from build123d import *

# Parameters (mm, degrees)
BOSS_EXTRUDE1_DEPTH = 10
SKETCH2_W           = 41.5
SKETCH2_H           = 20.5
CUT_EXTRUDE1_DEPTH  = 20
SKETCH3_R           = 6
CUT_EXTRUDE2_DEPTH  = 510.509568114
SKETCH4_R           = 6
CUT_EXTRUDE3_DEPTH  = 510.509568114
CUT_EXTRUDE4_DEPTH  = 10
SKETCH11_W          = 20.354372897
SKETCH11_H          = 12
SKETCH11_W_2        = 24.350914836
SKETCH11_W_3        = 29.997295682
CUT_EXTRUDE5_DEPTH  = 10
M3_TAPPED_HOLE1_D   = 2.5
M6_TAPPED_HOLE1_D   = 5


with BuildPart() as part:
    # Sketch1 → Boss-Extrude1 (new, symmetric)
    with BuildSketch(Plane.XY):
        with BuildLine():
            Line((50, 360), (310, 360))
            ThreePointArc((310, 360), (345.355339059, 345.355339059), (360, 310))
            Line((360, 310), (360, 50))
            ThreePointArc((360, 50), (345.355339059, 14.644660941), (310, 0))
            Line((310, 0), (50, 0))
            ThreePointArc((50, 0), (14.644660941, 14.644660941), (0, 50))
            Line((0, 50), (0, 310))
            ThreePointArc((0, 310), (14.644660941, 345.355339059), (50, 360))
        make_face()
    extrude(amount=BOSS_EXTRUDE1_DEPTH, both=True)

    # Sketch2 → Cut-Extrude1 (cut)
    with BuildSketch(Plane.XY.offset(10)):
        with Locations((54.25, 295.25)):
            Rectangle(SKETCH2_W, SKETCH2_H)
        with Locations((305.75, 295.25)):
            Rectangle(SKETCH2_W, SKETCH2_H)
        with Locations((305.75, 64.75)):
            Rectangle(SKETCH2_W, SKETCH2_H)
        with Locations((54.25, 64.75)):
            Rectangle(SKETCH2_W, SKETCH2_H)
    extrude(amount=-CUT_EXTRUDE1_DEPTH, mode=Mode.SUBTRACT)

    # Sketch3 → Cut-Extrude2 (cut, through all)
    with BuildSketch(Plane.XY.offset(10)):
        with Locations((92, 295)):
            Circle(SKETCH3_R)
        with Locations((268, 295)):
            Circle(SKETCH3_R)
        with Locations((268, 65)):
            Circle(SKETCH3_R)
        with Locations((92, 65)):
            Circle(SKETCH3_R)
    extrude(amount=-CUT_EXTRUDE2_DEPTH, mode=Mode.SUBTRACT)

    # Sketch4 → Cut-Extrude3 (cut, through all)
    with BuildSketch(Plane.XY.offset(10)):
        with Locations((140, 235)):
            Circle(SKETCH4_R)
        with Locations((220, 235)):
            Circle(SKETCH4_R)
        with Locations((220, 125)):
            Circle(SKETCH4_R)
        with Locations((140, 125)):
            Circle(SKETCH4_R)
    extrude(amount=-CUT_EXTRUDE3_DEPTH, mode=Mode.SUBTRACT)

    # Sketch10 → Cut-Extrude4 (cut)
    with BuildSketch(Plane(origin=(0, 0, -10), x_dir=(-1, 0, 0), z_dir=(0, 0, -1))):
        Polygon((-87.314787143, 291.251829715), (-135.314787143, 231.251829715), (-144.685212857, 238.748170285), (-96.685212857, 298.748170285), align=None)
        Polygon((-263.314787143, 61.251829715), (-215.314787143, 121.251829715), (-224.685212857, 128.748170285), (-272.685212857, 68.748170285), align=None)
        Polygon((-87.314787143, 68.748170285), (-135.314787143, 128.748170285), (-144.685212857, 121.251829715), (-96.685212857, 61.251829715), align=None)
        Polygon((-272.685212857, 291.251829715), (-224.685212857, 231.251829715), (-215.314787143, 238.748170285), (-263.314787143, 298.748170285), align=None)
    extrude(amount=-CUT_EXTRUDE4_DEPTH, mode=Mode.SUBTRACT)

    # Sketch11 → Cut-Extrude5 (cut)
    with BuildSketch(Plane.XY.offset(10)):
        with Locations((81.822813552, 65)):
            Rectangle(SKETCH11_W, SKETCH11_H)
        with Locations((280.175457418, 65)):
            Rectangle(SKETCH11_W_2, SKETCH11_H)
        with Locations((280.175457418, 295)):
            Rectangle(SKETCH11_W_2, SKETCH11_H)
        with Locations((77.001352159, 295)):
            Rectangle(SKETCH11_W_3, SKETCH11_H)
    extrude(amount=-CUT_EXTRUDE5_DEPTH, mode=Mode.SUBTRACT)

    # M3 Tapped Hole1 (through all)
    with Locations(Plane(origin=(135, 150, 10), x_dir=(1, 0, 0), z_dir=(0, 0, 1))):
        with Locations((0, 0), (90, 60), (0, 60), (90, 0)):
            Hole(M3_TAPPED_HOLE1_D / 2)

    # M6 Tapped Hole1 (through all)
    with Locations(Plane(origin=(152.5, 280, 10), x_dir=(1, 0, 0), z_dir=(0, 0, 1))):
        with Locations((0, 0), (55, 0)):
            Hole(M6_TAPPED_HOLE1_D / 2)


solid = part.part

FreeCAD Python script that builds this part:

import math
import FreeCAD as App
import Part
import Sketcher

V = App.Vector


def add_polygon(sketch, points):
    """Adds a closed chain of lines whose ends are joined by coincident constraints."""
    first, n = sketch.GeometryCount, len(points)
    for a, b in zip(points, points[1:] + points[:1]):
        sketch.addGeometry(Part.LineSegment(App.Vector(*a, 0), App.Vector(*b, 0)), False)
    for i in range(n):
        sketch.addConstraint(Sketcher.Constraint("Coincident", first + i, 2, first + (i + 1) % n, 1))

doc = App.newDocument("Part")
params = doc.addObject("Spreadsheet::Sheet", "Params")
for row, (alias, value) in enumerate([
    ("sketch1_radius", "50 mm"),
    ("sketch1_width", "260 mm"),
    ("pad1_length", "20 mm"),
    ("sketch2_width", "41.5 mm"),
    ("sketch2_height", "20.5 mm"),
    ("pocket1_length", "20 mm"),
    ("sketch3_diameter", "12 mm"),
    ("sketch4_diameter", "12 mm"),
    ("sketch5_length", "12 mm"),
    ("pocket4_length", "10 mm"),
    ("sketch6_height", "12 mm"),
    ("pocket5_length", "10 mm"),
    ("sketch7_diameter", "2.5 mm"),
    ("hole_diameter", "2.5 mm"),
    ("sketch8_diameter", "5 mm"),
    ("hole2_diameter", "5 mm"),
], start=1):
    params.set(f"A{row}", alias)
    params.set(f"B{row}", "=" + value)
    params.setAlias(f"B{row}", alias)

body = doc.addObject("PartDesign::Body", "Body")

sketch1 = doc.addObject("Sketcher::SketchObject", "Sketch")
body.addObject(sketch1)
sketch1.AttachmentSupport = (doc.XY_Plane, [""])
sketch1.MapMode = "FlatFace"
sketch1.addGeometry([
    Part.LineSegment(V(310, 360, 0), V(50, 360, 0)),
    Part.ArcOfCircle(Part.Circle(V(50, 310, 0), V(0, 0, 1), 50), math.radians(90), math.radians(180)),
    Part.LineSegment(V(0, 310, 0), V(0, 50, 0)),
    Part.ArcOfCircle(Part.Circle(V(50, 50, 0), V(0, 0, 1), 50), math.radians(-180), math.radians(-90)),
    Part.LineSegment(V(50, 0, 0), V(310, 0, 0)),
    Part.ArcOfCircle(Part.Circle(V(310, 50, 0), V(0, 0, 1), 50), math.radians(-90), math.radians(0)),
    Part.LineSegment(V(360, 50, 0), V(360, 310, 0)),
    Part.ArcOfCircle(Part.Circle(V(310, 310, 0), V(0, 0, 1), 50), math.radians(0), math.radians(90)),
], False)
sketch1.addConstraint([
    Sketcher.Constraint("Tangent", 0, 2, 1, 1),
    Sketcher.Constraint("Tangent", 1, 2, 2, 1),
    Sketcher.Constraint("Tangent", 2, 2, 3, 1),
    Sketcher.Constraint("Tangent", 3, 2, 4, 1),
    Sketcher.Constraint("Tangent", 4, 2, 5, 1),
    Sketcher.Constraint("Tangent", 5, 2, 6, 1),
    Sketcher.Constraint("Tangent", 6, 2, 7, 1),
    Sketcher.Constraint("Tangent", 7, 2, 0, 1),
    Sketcher.Constraint("Horizontal", 0),
    Sketcher.Constraint("Vertical", 2),
    Sketcher.Constraint("Horizontal", 4),
    Sketcher.Constraint("Vertical", 6),
    Sketcher.Constraint("Equal", 1, 3),
    Sketcher.Constraint("Equal", 3, 5),
    Sketcher.Constraint("Equal", 5, 7),
    Sketcher.Constraint("PointOnObject", 1, 2, -2),
    Sketcher.Constraint("PointOnObject", 3, 2, -1),
    Sketcher.Constraint("Equal", 4, 2),
    Sketcher.Constraint("Radius", 1, 50.0),
    Sketcher.Constraint("DistanceX", 0, 2, 0, 1, 260.0),
])
sketch1.setExpression("Constraints[18]", "Params.sketch1_radius")
sketch1.setExpression("Constraints[19]", "Params.sketch1_width")
pad1 = doc.addObject("PartDesign::Pad", "Pad")
body.addObject(pad1)
pad1.Profile = sketch1
pad1.setExpression("Length", "Params.pad1_length")
pad1.Midplane = True

sketch2 = doc.addObject("Sketcher::SketchObject", "Sketch001")
body.addObject(sketch2)
sketch2.AttachmentSupport = (doc.XY_Plane, [""])
sketch2.MapMode = "FlatFace"
sketch2.AttachmentOffset = App.Placement(V(0, 0, 10), App.Rotation())
add_polygon(sketch2, [(34, 306), (34, 285), (75, 285), (75, 306)])
add_polygon(sketch2, [(285, 306), (285, 285), (326, 285), (326, 306)])
add_polygon(sketch2, [(285, 75), (285, 54), (326, 54), (326, 75)])
add_polygon(sketch2, [(34, 75), (34, 54), (75, 54), (75, 75)])
sketch2.addConstraint([
    Sketcher.Constraint("Vertical", 0),
    Sketcher.Constraint("Horizontal", 1),
    Sketcher.Constraint("Vertical", 2),
    Sketcher.Constraint("Horizontal", 3),
    Sketcher.Constraint("Vertical", 4),
    Sketcher.Constraint("Horizontal", 5),
    Sketcher.Constraint("Vertical", 6),
    Sketcher.Constraint("Horizontal", 7),
    Sketcher.Constraint("Vertical", 8),
    Sketcher.Constraint("Horizontal", 9),
    Sketcher.Constraint("Vertical", 10),
    Sketcher.Constraint("Horizontal", 11),
    Sketcher.Constraint("Vertical", 12),
    Sketcher.Constraint("Horizontal", 13),
    Sketcher.Constraint("Vertical", 14),
    Sketcher.Constraint("Horizontal", 15),
    Sketcher.Constraint("Horizontal", 1, 2, 4, 2),
    Sketcher.Constraint("Horizontal", 3, 2, 6, 2),
    Sketcher.Constraint("Horizontal", 9, 2, 12, 2),
    Sketcher.Constraint("Horizontal", 11, 2, 14, 2),
    Sketcher.Constraint("Vertical", 7, 2, 8, 2),
    Sketcher.Constraint("Vertical", 6, 2, 9, 2),
    Sketcher.Constraint("Vertical", 3, 2, 12, 2),
    Sketcher.Constraint("Vertical", 2, 2, 13, 2),
    Sketcher.Constraint("Equal", 3, 5),
    Sketcher.Constraint("Equal", 6, 8),
    Sketcher.Constraint("DistanceX", 1, 1, 1, 2, 41.5),
    Sketcher.Constraint("DistanceY", 0, 2, 0, 1, 20.5),
    Sketcher.Constraint("DistanceY", -1, 1, 0, 2, 285.0),
    Sketcher.Constraint("DistanceX", -1, 1, 1, 2, 75.0),
    Sketcher.Constraint("DistanceX", -1, 1, 4, 2, 285.0),
    Sketcher.Constraint("DistanceY", -1, 1, 10, 2, 75.0),
])
sketch2.setExpression("Constraints[42]", "Params.sketch2_width")
sketch2.setExpression("Constraints[43]", "Params.sketch2_height")
pocket1 = doc.addObject("PartDesign::Pocket", "Pocket")
body.addObject(pocket1)
pocket1.Profile = sketch2
pocket1.setExpression("Length", "Params.pocket1_length")

sketch3 = doc.addObject("Sketcher::SketchObject", "Sketch002")
body.addObject(sketch3)
sketch3.AttachmentSupport = (doc.XY_Plane, [""])
sketch3.MapMode = "FlatFace"
sketch3.AttachmentOffset = App.Placement(V(0, 0, 10), App.Rotation())
sketch3.addGeometry([
    Part.Circle(V(92, 295, 0), V(0, 0, 1), 6),
    Part.Circle(V(268, 295, 0), V(0, 0, 1), 6),
    Part.Circle(V(268, 65, 0), V(0, 0, 1), 6),
    Part.Circle(V(92, 65, 0), V(0, 0, 1), 6),
], False)
sketch3.addConstraint([
    Sketcher.Constraint("Equal", 0, 1),
    Sketcher.Constraint("Equal", 1, 2),
    Sketcher.Constraint("Equal", 2, 3),
    Sketcher.Constraint("Horizontal", 0, 3, 1, 3),
    Sketcher.Constraint("Horizontal", 2, 3, 3, 3),
    Sketcher.Constraint("Vertical", 1, 3, 2, 3),
    Sketcher.Constraint("Vertical", 0, 3, 3, 3),
    Sketcher.Constraint("Diameter", 0, 12.0),
    Sketcher.Constraint("DistanceX", -1, 1, 0, 3, 92.0),
    Sketcher.Constraint("DistanceY", -1, 1, 0, 3, 295.0),
    Sketcher.Constraint("DistanceX", -1, 1, 1, 3, 268.0),
    Sketcher.Constraint("DistanceY", -1, 1, 2, 3, 65.0),
])
sketch3.setExpression("Constraints[7]", "Params.sketch3_diameter")
pocket2 = doc.addObject("PartDesign::Pocket", "Pocket001")
body.addObject(pocket2)
pocket2.Profile = sketch3
pocket2.Type = "ThroughAll"

sketch4 = doc.addObject("Sketcher::SketchObject", "Sketch003")
body.addObject(sketch4)
sketch4.AttachmentSupport = (doc.XY_Plane, [""])
sketch4.MapMode = "FlatFace"
sketch4.AttachmentOffset = App.Placement(V(0, 0, 10), App.Rotation())
sketch4.addGeometry([
    Part.Circle(V(140, 235, 0), V(0, 0, 1), 6),
    Part.Circle(V(220, 235, 0), V(0, 0, 1), 6),
    Part.Circle(V(220, 125, 0), V(0, 0, 1), 6),
    Part.Circle(V(140, 125, 0), V(0, 0, 1), 6),
], False)
sketch4.addConstraint([
    Sketcher.Constraint("Equal", 0, 1),
    Sketcher.Constraint("Equal", 1, 2),
    Sketcher.Constraint("Equal", 2, 3),
    Sketcher.Constraint("Horizontal", 0, 3, 1, 3),
    Sketcher.Constraint("Horizontal", 2, 3, 3, 3),
    Sketcher.Constraint("Vertical", 1, 3, 2, 3),
    Sketcher.Constraint("Vertical", 0, 3, 3, 3),
    Sketcher.Constraint("Diameter", 0, 12.0),
    Sketcher.Constraint("DistanceX", -1, 1, 0, 3, 140.0),
    Sketcher.Constraint("DistanceY", -1, 1, 0, 3, 235.0),
    Sketcher.Constraint("DistanceX", -1, 1, 1, 3, 220.0),
    Sketcher.Constraint("DistanceY", -1, 1, 2, 3, 125.0),
])
sketch4.setExpression("Constraints[7]", "Params.sketch4_diameter")
pocket3 = doc.addObject("PartDesign::Pocket", "Pocket002")
body.addObject(pocket3)
pocket3.Profile = sketch4
pocket3.Type = "ThroughAll"

sketch5 = doc.addObject("Sketcher::SketchObject", "Sketch004")
body.addObject(sketch5)
sketch5.AttachmentSupport = (doc.XY_Plane, [""])
sketch5.MapMode = "FlatFace"
sketch5.AttachmentOffset = App.Placement(V(0, 0, -10), App.Rotation())
add_polygon(sketch5, [(135, 231), (87, 291), (97, 299), (145, 239)])
add_polygon(sketch5, [(263, 61), (215, 121), (225, 129), (273, 69)])
add_polygon(sketch5, [(87, 69), (135, 129), (145, 121), (97, 61)])
add_polygon(sketch5, [(273, 291), (225, 231), (215, 239), (263, 299)])
sketch5.addConstraint([
    Sketcher.Constraint("Perpendicular", 0, 1),
    Sketcher.Constraint("Perpendicular", 1, 2),
    Sketcher.Constraint("Perpendicular", 2, 3),
    Sketcher.Constraint("Perpendicular", 3, 4),
    Sketcher.Constraint("Perpendicular", 4, 5),
    Sketcher.Constraint("Perpendicular", 5, 6),
    Sketcher.Constraint("Perpendicular", 6, 7),
    Sketcher.Constraint("Perpendicular", 8, 9),
    Sketcher.Constraint("Perpendicular", 9, 10),
    Sketcher.Constraint("Perpendicular", 10, 11),
    Sketcher.Constraint("Perpendicular", 11, 12),
    Sketcher.Constraint("Perpendicular", 12, 13),
    Sketcher.Constraint("Perpendicular", 13, 14),
    Sketcher.Constraint("Perpendicular", 14, 15),
    Sketcher.Constraint("Horizontal", 5, 2, 8, 2),
    Sketcher.Constraint("Horizontal", 4, 2, 9, 2),
    Sketcher.Constraint("Horizontal", 7, 2, 10, 2),
    Sketcher.Constraint("Horizontal", 3, 2, 12, 2),
    Sketcher.Constraint("Horizontal", 2, 2, 13, 2),
    Sketcher.Constraint("Horizontal", 1, 2, 14, 2),
    Sketcher.Constraint("Vertical", 3, 2, 8, 2),
    Sketcher.Constraint("Vertical", 2, 2, 9, 2),
    Sketcher.Constraint("Vertical", 1, 2, 10, 2),
    Sketcher.Constraint("Vertical", 5, 2, 12, 2),
    Sketcher.Constraint("Vertical", 4, 2, 13, 2),
    Sketcher.Constraint("Distance", 1, 12.0),
    Sketcher.Constraint("DistanceX", 1, 2, 2, 2, 48.0),
    Sketcher.Constraint("DistanceY", 2, 2, 1, 2, 60.0),
    Sketcher.Constraint("DistanceX", 3, 2, 4, 2, 80.0),
    Sketcher.Constraint("DistanceY", 4, 2, 3, 2, 110.0),
    Sketcher.Constraint("DistanceY", -1, 1, 0, 2, 291.25183),
    Sketcher.Constraint("DistanceX", -1, 1, 0, 2, 87.314787),
])
sketch5.setExpression("Constraints[41]", "Params.sketch5_length")
pocket4 = doc.addObject("PartDesign::Pocket", "Pocket003")
body.addObject(pocket4)
pocket4.Profile = sketch5
pocket4.setExpression("Length", "Params.pocket4_length")
pocket4.Reversed = True

sketch6 = doc.addObject("Sketcher::SketchObject", "Sketch005")
body.addObject(sketch6)
sketch6.AttachmentSupport = (doc.XY_Plane, [""])
sketch6.MapMode = "FlatFace"
sketch6.AttachmentOffset = App.Placement(V(0, 0, 10), App.Rotation())
add_polygon(sketch6, [(72, 71), (72, 59), (92, 59), (92, 71)])
add_polygon(sketch6, [(268, 71), (268, 59), (292, 59), (292, 71)])
add_polygon(sketch6, [(268, 301), (268, 289), (292, 289), (292, 301)])
add_polygon(sketch6, [(62, 301), (62, 289), (92, 289), (92, 301)])
sketch6.addConstraint([
    Sketcher.Constraint("Vertical", 0),
    Sketcher.Constraint("Horizontal", 1),
    Sketcher.Constraint("Vertical", 2),
    Sketcher.Constraint("Horizontal", 3),
    Sketcher.Constraint("Vertical", 4),
    Sketcher.Constraint("Horizontal", 5),
    Sketcher.Constraint("Vertical", 6),
    Sketcher.Constraint("Horizontal", 7),
    Sketcher.Constraint("Vertical", 8),
    Sketcher.Constraint("Horizontal", 9),
    Sketcher.Constraint("Vertical", 10),
    Sketcher.Constraint("Horizontal", 11),
    Sketcher.Constraint("Vertical", 12),
    Sketcher.Constraint("Horizontal", 13),
    Sketcher.Constraint("Vertical", 14),
    Sketcher.Constraint("Horizontal", 15),
    Sketcher.Constraint("Horizontal", 1, 2, 4, 2),
    Sketcher.Constraint("Horizontal", 3, 2, 6, 2),
    Sketcher.Constraint("Horizontal", 9, 2, 12, 2),
    Sketcher.Constraint("Horizontal", 11, 2, 14, 2),
    Sketcher.Constraint("Vertical", 7, 2, 8, 2),
    Sketcher.Constraint("Vertical", 6, 2, 9, 2),
    Sketcher.Constraint("Vertical", 2, 2, 13, 2),
    Sketcher.Constraint("Equal", 6, 8),
    Sketcher.Constraint("DistanceY", 0, 2, 0, 1, 12.0),
    Sketcher.Constraint("DistanceY", -1, 1, 0, 2, 59.0),
    Sketcher.Constraint("DistanceX", -1, 1, 1, 2, 92.0),
    Sketcher.Constraint("DistanceX", -1, 1, 4, 2, 268.0),
    Sketcher.Constraint("DistanceY", -1, 1, 8, 2, 289.0),
    Sketcher.Constraint("DistanceX", 1, 1, 1, 2, 20.354373),
    Sketcher.Constraint("DistanceX", 5, 1, 5, 2, 24.350915),
    Sketcher.Constraint("DistanceX", 13, 1, 13, 2, 29.997296),
])
sketch6.setExpression("Constraints[40]", "Params.sketch6_height")
pocket5 = doc.addObject("PartDesign::Pocket", "Pocket004")
body.addObject(pocket5)
pocket5.Profile = sketch6
pocket5.setExpression("Length", "Params.pocket5_length")

sketch7 = doc.addObject("Sketcher::SketchObject", "Sketch006")
body.addObject(sketch7)
sketch7.AttachmentSupport = (doc.XY_Plane, [""])
sketch7.MapMode = "FlatFace"
sketch7.AttachmentOffset = App.Placement(V(0, 0, 10), App.Rotation())
sketch7.addGeometry([
    Part.Circle(V(135, 150, 0), V(0, 0, 1), 1.2),
    Part.Circle(V(225, 210, 0), V(0, 0, 1), 1.2),
    Part.Circle(V(135, 210, 0), V(0, 0, 1), 1.2),
    Part.Circle(V(225, 150, 0), V(0, 0, 1), 1.2),
], False)
sketch7.addConstraint([
    Sketcher.Constraint("Equal", 0, 1),
    Sketcher.Constraint("Equal", 1, 2),
    Sketcher.Constraint("Equal", 2, 3),
    Sketcher.Constraint("Horizontal", 1, 3, 2, 3),
    Sketcher.Constraint("Horizontal", 0, 3, 3, 3),
    Sketcher.Constraint("Vertical", 0, 3, 2, 3),
    Sketcher.Constraint("Vertical", 1, 3, 3, 3),
    Sketcher.Constraint("Diameter", 0, 2.5),
    Sketcher.Constraint("DistanceX", -1, 1, 0, 3, 135.0),
    Sketcher.Constraint("DistanceY", -1, 1, 0, 3, 150.0),
    Sketcher.Constraint("DistanceX", -1, 1, 1, 3, 225.0),
    Sketcher.Constraint("DistanceY", -1, 1, 1, 3, 210.0),
])
sketch7.setExpression("Constraints[7]", "Params.sketch7_diameter")
doc.recompute()
hole = doc.addObject("PartDesign::Hole", "Hole")
body.addObject(hole)
hole.Profile = sketch7
hole.ThreadType = "None"
hole.setExpression("Diameter", "Params.hole_diameter")
hole.DepthType = "ThroughAll"

sketch8 = doc.addObject("Sketcher::SketchObject", "Sketch007")
body.addObject(sketch8)
sketch8.AttachmentSupport = (doc.XY_Plane, [""])
sketch8.MapMode = "FlatFace"
sketch8.AttachmentOffset = App.Placement(V(0, 0, 10), App.Rotation())
sketch8.addGeometry([
    Part.Circle(V(152.5, 280, 0), V(0, 0, 1), 2.5),
    Part.Circle(V(207.5, 280, 0), V(0, 0, 1), 2.5),
], False)
sketch8.addConstraint([
    Sketcher.Constraint("Equal", 0, 1),
    Sketcher.Constraint("Horizontal", 0, 3, 1, 3),
    Sketcher.Constraint("Diameter", 0, 5.0),
    Sketcher.Constraint("DistanceY", -1, 1, 0, 3, 280.0),
    Sketcher.Constraint("DistanceX", 0, 3, 1, 3, 55.0),
    Sketcher.Constraint("DistanceX", -1, 1, 0, 3, 152.5),
])
sketch8.setExpression("Constraints[2]", "Params.sketch8_diameter")
doc.recompute()
hole2 = doc.addObject("PartDesign::Hole", "Hole001")
body.addObject(hole2)
hole2.Profile = sketch8
hole2.ThreadType = "None"
hole2.setExpression("Diameter", "Params.hole2_diameter")
hole2.DepthType = "ThroughAll"

doc.recompute()
